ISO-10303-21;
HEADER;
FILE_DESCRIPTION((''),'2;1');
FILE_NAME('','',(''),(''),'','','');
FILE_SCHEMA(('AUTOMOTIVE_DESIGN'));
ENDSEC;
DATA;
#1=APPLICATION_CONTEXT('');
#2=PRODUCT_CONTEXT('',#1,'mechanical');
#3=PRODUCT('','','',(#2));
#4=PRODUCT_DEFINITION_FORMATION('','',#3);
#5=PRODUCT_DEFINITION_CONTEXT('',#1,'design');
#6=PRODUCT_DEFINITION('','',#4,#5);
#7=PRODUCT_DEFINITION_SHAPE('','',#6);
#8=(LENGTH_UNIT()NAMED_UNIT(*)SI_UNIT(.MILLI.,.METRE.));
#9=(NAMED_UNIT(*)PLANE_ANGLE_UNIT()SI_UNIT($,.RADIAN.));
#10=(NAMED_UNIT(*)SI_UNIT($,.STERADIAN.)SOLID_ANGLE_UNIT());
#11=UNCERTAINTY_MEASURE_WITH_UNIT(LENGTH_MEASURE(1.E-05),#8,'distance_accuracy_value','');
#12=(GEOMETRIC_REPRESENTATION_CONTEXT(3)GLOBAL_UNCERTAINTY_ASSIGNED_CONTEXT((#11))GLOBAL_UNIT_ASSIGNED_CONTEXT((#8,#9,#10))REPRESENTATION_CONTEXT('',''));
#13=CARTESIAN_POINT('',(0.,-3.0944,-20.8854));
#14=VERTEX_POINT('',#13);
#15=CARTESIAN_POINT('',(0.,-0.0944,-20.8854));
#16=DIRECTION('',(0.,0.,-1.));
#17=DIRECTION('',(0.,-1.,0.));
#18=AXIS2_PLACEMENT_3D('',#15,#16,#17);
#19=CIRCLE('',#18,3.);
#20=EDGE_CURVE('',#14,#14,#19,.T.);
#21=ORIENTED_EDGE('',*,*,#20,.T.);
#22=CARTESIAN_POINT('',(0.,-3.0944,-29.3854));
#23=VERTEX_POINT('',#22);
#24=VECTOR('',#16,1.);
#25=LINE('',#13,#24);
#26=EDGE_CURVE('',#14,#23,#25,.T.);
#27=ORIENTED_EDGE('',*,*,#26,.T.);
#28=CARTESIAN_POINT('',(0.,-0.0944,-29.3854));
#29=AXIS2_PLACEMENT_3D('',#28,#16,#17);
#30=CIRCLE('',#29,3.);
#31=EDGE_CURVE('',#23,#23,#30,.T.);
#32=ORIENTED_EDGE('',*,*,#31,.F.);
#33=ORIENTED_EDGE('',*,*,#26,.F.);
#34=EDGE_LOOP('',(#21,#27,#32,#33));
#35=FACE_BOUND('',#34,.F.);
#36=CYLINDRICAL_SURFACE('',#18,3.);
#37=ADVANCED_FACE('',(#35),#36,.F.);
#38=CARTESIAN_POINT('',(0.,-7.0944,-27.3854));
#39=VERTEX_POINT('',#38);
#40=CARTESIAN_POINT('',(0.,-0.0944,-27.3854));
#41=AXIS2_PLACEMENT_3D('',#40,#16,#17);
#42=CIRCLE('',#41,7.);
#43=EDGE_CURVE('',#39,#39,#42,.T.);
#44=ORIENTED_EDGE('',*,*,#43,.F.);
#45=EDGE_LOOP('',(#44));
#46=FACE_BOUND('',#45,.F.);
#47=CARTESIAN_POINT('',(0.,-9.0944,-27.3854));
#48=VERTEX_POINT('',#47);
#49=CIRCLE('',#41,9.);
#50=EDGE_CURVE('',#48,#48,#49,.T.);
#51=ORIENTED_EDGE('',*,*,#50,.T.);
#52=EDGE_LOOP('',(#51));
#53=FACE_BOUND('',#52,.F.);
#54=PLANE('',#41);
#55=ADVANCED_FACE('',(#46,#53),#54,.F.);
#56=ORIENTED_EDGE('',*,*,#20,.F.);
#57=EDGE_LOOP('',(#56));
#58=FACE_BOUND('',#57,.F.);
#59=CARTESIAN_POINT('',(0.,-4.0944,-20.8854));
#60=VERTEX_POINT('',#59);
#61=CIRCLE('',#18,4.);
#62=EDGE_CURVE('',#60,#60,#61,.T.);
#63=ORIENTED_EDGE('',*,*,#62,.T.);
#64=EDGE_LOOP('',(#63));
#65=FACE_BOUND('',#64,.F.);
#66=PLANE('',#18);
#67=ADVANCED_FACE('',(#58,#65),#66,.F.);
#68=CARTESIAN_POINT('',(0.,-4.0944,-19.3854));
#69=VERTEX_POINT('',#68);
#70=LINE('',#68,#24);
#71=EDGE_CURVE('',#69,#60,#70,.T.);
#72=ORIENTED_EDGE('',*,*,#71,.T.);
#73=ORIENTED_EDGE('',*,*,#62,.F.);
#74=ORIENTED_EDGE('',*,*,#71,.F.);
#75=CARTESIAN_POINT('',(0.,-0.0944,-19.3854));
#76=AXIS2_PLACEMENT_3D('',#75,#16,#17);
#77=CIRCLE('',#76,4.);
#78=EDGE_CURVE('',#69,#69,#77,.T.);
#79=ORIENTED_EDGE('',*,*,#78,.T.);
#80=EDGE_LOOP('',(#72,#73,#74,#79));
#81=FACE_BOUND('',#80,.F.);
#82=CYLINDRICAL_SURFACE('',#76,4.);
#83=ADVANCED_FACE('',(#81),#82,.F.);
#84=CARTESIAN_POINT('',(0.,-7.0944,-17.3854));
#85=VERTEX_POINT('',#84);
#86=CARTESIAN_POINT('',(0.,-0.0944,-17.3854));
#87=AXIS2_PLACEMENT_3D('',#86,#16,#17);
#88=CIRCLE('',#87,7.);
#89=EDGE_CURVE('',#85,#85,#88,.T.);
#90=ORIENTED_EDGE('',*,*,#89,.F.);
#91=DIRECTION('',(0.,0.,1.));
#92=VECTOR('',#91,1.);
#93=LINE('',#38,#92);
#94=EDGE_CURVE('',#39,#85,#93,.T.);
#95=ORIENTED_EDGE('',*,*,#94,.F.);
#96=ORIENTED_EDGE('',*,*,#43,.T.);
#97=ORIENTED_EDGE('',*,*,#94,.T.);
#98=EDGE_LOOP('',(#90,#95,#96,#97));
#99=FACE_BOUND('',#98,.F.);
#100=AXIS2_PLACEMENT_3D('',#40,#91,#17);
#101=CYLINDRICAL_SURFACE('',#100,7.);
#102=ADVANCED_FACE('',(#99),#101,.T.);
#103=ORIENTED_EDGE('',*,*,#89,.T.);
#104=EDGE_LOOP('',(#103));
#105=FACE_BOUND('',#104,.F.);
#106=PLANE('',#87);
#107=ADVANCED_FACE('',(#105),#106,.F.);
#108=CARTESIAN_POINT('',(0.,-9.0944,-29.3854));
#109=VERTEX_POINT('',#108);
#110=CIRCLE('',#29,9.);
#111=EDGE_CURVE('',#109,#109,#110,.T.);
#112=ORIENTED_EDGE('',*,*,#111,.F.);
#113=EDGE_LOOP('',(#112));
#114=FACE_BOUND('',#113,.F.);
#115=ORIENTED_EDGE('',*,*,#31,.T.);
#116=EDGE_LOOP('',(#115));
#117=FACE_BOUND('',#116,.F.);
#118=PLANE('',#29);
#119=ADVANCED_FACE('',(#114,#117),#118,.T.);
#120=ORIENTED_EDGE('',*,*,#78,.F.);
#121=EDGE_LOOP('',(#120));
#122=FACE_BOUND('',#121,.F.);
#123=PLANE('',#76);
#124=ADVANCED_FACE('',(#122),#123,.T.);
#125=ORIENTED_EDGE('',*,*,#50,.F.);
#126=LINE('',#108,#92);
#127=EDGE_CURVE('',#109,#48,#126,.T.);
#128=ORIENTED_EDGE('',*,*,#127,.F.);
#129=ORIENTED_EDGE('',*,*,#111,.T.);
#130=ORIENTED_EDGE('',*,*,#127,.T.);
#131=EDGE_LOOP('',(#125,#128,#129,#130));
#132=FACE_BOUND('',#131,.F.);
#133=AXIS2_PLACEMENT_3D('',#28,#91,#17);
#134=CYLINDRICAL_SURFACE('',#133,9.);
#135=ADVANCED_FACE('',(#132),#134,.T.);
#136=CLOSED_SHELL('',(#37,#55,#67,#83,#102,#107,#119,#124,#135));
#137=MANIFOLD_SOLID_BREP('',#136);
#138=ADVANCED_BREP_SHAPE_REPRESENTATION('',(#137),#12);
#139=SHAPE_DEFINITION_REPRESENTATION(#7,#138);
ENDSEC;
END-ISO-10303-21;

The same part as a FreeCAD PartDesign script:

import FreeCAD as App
import Part
import Sketcher


def add_polygon(sketch, points):
    """Adds a closed chain of lines whose ends are joined by coincident constraints."""
    first, n = sketch.GeometryCount, len(points)
    for a, b in zip(points, points[1:] + points[:1]):
        sketch.addGeometry(Part.LineSegment(App.Vector(*a, 0), App.Vector(*b, 0)), False)
    for i in range(n):
        sketch.addConstraint(Sketcher.Constraint("Coincident", first + i, 2, first + (i + 1) % n, 1))

doc = App.newDocument("Part")
body = doc.addObject("PartDesign::Body", "Body")

sketch1 = doc.addObject("Sketcher::SketchObject", "Sketch")
body.addObject(sketch1)
sketch1.AttachmentSupport = (doc.YZ_Plane, [""])
sketch1.MapMode = "FlatFace"
add_polygon(sketch1, [(-9.0944, -29.3854), (-3.0944, -29.3854), (-3.0944, -20.8854), (-4.0944, -20.8854), (-4.0944, -19.3854), (-0.0944, -19.3854), (-0.0944, -17.3854), (-7.0944, -17.3854), (-7.0944, -27.3854), (-9.0944, -27.3854)])
sketch1.addGeometry(Part.LineSegment(App.Vector(-0.0944, -17.3854, 0), App.Vector(-0.0944, -29.3854, 0)), True)
sketch1.addConstraint(Sketcher.Constraint("Horizontal", 0))
sketch1.addConstraint(Sketcher.Constraint("Vertical", 1))
sketch1.addConstraint(Sketcher.Constraint("Horizontal", 2))
sketch1.addConstraint(Sketcher.Constraint("Vertical", 3))
sketch1.addConstraint(Sketcher.Constraint("Horizontal", 4))
sketch1.addConstraint(Sketcher.Constraint("Vertical", 5))
sketch1.addConstraint(Sketcher.Constraint("Horizontal", 6))
sketch1.addConstraint(Sketcher.Constraint("Vertical", 7))
sketch1.addConstraint(Sketcher.Constraint("Horizontal", 8))
sketch1.addConstraint(Sketcher.Constraint("Vertical", 9))
sketch1.addConstraint(Sketcher.Constraint("Vertical", 10))
sketch1.addConstraint(Sketcher.Constraint("Coincident", 10, 1, 5, 2))
sketch1.addConstraint(Sketcher.Constraint("Horizontal", 9, 2, 10, 2))
sketch1.addConstraint(Sketcher.Constraint("Equal", 8, 5))
sketch1.addConstraint(Sketcher.Constraint("Equal", 5, 9))
sketch1.addConstraint(Sketcher.Constraint("DistanceX", 0, 1, 0, 2, 6.0))
sketch1.addConstraint(Sketcher.Constraint("DistanceX", 2, 2, 2, 1, 1.0))
sketch1.addConstraint(Sketcher.Constraint("DistanceX", 4, 1, 4, 2, 4.0))
sketch1.addConstraint(Sketcher.Constraint("DistanceX", 6, 2, 6, 1, 7.0))
sketch1.addConstraint(Sketcher.Constraint("DistanceY", 7, 2, 7, 1, 10.0))
sketch1.addConstraint(Sketcher.Constraint("DistanceY", 1, 1, 1, 2, 8.5))
sketch1.addConstraint(Sketcher.Constraint("DistanceX", 0, 2, -1, 1, 3.0944))
sketch1.addConstraint(Sketcher.Constraint("DistanceY", 0, 2, -1, 1, 29.3854))
revolution = doc.addObject("PartDesign::Revolution", "Revolution")
body.addObject(revolution)
revolution.Profile = sketch1
revolution.ReferenceAxis = (sketch1, ["Axis0"])
revolution.Angle = 360

doc.recompute()
